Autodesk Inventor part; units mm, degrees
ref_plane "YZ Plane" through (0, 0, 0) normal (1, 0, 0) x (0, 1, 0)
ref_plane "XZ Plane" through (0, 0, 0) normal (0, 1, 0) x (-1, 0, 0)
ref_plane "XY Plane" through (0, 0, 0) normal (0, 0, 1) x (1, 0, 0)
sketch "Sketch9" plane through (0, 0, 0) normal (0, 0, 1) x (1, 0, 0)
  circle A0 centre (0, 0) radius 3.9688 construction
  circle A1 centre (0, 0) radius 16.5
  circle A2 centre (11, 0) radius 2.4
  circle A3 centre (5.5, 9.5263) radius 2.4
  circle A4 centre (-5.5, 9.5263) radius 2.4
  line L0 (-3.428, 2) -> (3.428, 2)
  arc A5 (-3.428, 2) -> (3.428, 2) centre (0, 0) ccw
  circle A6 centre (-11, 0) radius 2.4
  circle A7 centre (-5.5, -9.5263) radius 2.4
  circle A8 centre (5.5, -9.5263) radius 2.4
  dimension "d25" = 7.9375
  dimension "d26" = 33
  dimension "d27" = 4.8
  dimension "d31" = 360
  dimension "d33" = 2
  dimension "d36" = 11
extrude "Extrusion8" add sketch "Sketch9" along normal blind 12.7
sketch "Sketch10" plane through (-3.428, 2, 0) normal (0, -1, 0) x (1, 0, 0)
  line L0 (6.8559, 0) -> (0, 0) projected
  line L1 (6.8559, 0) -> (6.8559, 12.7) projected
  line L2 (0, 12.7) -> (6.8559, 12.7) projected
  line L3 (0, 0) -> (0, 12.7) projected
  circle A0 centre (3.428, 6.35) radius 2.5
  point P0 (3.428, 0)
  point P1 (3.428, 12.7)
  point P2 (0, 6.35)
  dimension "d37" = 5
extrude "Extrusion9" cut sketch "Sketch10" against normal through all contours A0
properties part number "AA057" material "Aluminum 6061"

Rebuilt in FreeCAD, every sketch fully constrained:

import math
import FreeCAD as App
import Part
import Sketcher
Q = App.Units.Quantity

doc = App.newDocument("Part")
body = doc.addObject("PartDesign::Body", "Body")

# Sketch on XY plane
sketch1 = body.newObject("Sketcher::SketchObject", "Sketch")
sketch1.AttachmentSupport = (doc.getObject("XY_Plane"), [""])
sketch1.MapMode = "FlatFace"
sketch1.addGeometry([
    Part.Circle(App.Vector(0, 0, 0), App.Vector(0, 0, 1), 16.5),  # 0
    Part.Circle(App.Vector(-5.5, -9.5263, 0), App.Vector(0, 0, 1), 2.4),  # 1
    Part.Circle(App.Vector(5.5, -9.5263, 0), App.Vector(0, 0, 1), 2.4),  # 2
    Part.ArcOfCircle(Part.Circle(App.Vector(0, 0, 0), App.Vector(0, 0, 1), 3.968776), math.radians(149.739406), math.radians(390.260594)),  # 3
    Part.LineSegment(App.Vector(-3.428, 2, 0), App.Vector(3.428, 2, 0)),  # 4
    Part.Circle(App.Vector(-11, 0, 0), App.Vector(0, 0, 1), 2.4),  # 5
    Part.Circle(App.Vector(-5.5, 9.5263, 0), App.Vector(0, 0, 1), 2.4),  # 6
    Part.Circle(App.Vector(11, 0, 0), App.Vector(0, 0, 1), 2.4),  # 7
    Part.Circle(App.Vector(5.5, 9.5263, 0), App.Vector(0, 0, 1), 2.4),  # 8
], False)
sketch1.addConstraint([
    Sketcher.Constraint("Coincident", 3, 1, 4, 1),
    Sketcher.Constraint("Coincident", 4, 2, 3, 2),
    Sketcher.Constraint("Horizontal", 4),
    Sketcher.Constraint("Coincident", 0, 3, -1, 1),
    Sketcher.Constraint("Coincident", 3, 3, -1, 1),
    Sketcher.Constraint("Equal", 1, 2),
    Sketcher.Constraint("Equal", 2, 5),
    Sketcher.Constraint("Equal", 5, 6),
    Sketcher.Constraint("Equal", 6, 7),
    Sketcher.Constraint("Equal", 7, 8),
    Sketcher.Constraint("Symmetric", 2, 3, 6, 3, -1, 1),
    Sketcher.Constraint("Symmetric", 5, 3, 7, 3, -1, 1),
    Sketcher.Constraint("Symmetric", 1, 3, 8, 3, -1, 1),
    Sketcher.Constraint("Symmetric", 1, 3, 2, 3, -2),
    Sketcher.Constraint("PointOnObject", 5, 3, -1),
    Sketcher.Constraint("Diameter", 0, Q("33 mm")),
    Sketcher.Constraint("Diameter", 1, Q("4.8 mm")),
    Sketcher.Constraint("DistanceX", 5, 3, -1, 1, Q("11 mm")),
    Sketcher.Constraint("DistanceY", -1, 1, 3, 1, Q("2 mm")),
    Sketcher.Constraint("DistanceX", 1, 3, 2, 3, Q("11 mm")),
    Sketcher.Constraint("Radius", 3, Q("3.9688 mm")),
    Sketcher.Constraint("DistanceY", 1, 3, -1, 1, Q("9.5263 mm")),
])
pad1 = body.newObject("PartDesign::Pad", "Pad")
pad1.Profile = sketch1
pad1.Length = 12.7

# Sketch on XZ plane
sketch2 = body.newObject("Sketcher::SketchObject", "Sketch001")
sketch2.AttachmentSupport = (doc.getObject("XZ_Plane"), [""])
sketch2.MapMode = "FlatFace"
sketch2.AttachmentOffset = App.Placement(App.Vector(0, 0, -2), App.Rotation())
sketch2.addGeometry(Part.Circle(App.Vector(0, 6.35, 0), App.Vector(0, 0, 1), 2.5), False)
sketch2.addConstraint([
    Sketcher.Constraint("PointOnObject", 0, 3, -2),
    Sketcher.Constraint("Diameter", 0, Q("5 mm")),
    Sketcher.Constraint("DistanceY", -1, 1, 0, 3, Q("6.35 mm")),
])
pocket1 = body.newObject("PartDesign::Pocket", "Pocket")
pocket1.Profile = sketch2
pocket1.Type = "ThroughAll"

doc.recompute()
